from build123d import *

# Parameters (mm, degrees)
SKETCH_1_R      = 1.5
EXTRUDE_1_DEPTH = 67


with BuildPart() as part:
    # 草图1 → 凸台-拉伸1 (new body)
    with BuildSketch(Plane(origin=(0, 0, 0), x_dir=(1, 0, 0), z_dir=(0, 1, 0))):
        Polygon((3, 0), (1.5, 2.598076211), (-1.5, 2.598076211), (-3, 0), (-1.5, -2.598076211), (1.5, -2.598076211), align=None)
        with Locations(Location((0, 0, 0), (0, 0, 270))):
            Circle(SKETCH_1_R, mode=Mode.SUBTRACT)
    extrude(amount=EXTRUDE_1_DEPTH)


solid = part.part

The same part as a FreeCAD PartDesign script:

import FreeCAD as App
import Part
import Sketcher
Q = App.Units.Quantity

doc = App.newDocument("Part")
body = doc.addObject("PartDesign::Body", "Body")

# Sketch on XZ plane
sketch1 = doc.addObject("Sketcher::SketchObject", "Sketch")
body.addObject(sketch1)
sketch1.AttachmentSupport = (doc.XZ_Plane, [""])
sketch1.MapMode = "FlatFace"
sketch1.addGeometry(Part.LineSegment(App.Vector(3, 0, 0), App.Vector(1.5, -2.598076, 0)), False)
sketch1.addGeometry(Part.LineSegment(App.Vector(1.5, -2.598076, 0), App.Vector(-1.5, -2.598076, 0)), False)
sketch1.addGeometry(Part.LineSegment(App.Vector(-1.5, -2.598076, 0), App.Vector(-3, 0, 0)), False)
sketch1.addGeometry(Part.LineSegment(App.Vector(-3, 0, 0), App.Vector(-1.5, 2.598076, 0)), False)
sketch1.addGeometry(Part.LineSegment(App.Vector(-1.5, 2.598076, 0), App.Vector(1.5, 2.598076, 0)), False)
sketch1.addGeometry(Part.LineSegment(App.Vector(1.5, 2.598076, 0), App.Vector(3, 0, 0)), False)
sketch1.addGeometry(Part.Circle(App.Vector(0, 0, 0), App.Vector(0, 0, 1), 1.5), False)
sketch1.addConstraint(Sketcher.Constraint("Coincident", 0, 2, 1, 1))
sketch1.addConstraint(Sketcher.Constraint("Coincident", 1, 2, 2, 1))
sketch1.addConstraint(Sketcher.Constraint("Coincident", 2, 2, 3, 1))
sketch1.addConstraint(Sketcher.Constraint("Coincident", 3, 2, 4, 1))
sketch1.addConstraint(Sketcher.Constraint("Coincident", 4, 2, 5, 1))
sketch1.addConstraint(Sketcher.Constraint("Coincident", 5, 2, 0, 1))
sketch1.addConstraint(Sketcher.Constraint("Horizontal", 1))
sketch1.addConstraint(Sketcher.Constraint("Horizontal", 4))
sketch1.addConstraint(Sketcher.Constraint("Coincident", 6, 3, -1, 1))
sketch1.addConstraint(Sketcher.Constraint("Symmetric", 0, 2, 3, 2, -1, 1))
sketch1.addConstraint(Sketcher.Constraint("Symmetric", 2, 2, 5, 2, -1, 1))
sketch1.addConstraint(Sketcher.Constraint("PointOnObject", 2, 2, -1))
sketch1.addConstraint(Sketcher.Constraint("Parallel", 2, 5))
sketch1.addConstraint(Sketcher.Constraint("Vertical", 1, 2, 3, 2))
sketch1.addConstraint(Sketcher.Constraint("Diameter", 6, Q("3 mm")))
sketch1.addConstraint(Sketcher.Constraint("DistanceX", 1, 2, 1, 1, Q("3 mm")))
sketch1.addConstraint(Sketcher.Constraint("Angle", 0, Q("-120 deg")))
sketch1.addConstraint(Sketcher.Constraint("Distance", 0, Q("3 mm")))
pad1 = doc.addObject("PartDesign::Pad", "Pad")
body.addObject(pad1)
pad1.Profile = sketch1
pad1.Length = 67
pad1.Reversed = True

doc.recompute()
